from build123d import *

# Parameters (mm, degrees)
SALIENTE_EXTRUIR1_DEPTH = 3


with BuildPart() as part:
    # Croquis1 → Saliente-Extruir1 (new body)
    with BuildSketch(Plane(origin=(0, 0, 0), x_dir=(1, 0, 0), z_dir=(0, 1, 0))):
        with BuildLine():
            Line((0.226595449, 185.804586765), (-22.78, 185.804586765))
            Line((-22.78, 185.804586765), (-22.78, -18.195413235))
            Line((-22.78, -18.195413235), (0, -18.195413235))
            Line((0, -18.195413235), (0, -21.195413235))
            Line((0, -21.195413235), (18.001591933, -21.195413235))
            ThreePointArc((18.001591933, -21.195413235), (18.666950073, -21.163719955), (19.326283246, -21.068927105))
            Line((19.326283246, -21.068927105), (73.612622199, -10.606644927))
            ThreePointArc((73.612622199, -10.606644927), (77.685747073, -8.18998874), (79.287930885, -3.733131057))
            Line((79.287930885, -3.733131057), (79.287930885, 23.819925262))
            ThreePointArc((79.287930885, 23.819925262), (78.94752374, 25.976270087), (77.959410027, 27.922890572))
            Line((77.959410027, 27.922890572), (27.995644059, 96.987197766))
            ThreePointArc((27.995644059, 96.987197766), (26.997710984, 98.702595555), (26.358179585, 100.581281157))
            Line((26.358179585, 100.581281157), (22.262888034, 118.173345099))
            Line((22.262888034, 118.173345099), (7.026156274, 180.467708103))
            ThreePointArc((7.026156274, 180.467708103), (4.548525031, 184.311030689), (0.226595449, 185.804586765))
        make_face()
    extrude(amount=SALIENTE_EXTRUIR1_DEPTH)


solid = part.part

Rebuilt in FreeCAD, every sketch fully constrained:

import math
import FreeCAD as App
import Part
import Sketcher
from FreeCAD import Vector
Q = App.Units.Quantity

doc = App.newDocument("Part")
params = doc.addObject("Spreadsheet::Sheet", "Params")
for row, (alias, value) in enumerate([
    ("sketch1_radius", "7 mm"),
    ("sketch1_radius2", "7 mm"),
    ("sketch1_radius3", "7 mm"),
    ("sketch1_radius4", "10 mm"),
    ("sketch1_radius5", "7 mm"),
    ("pad1_length", "3 mm"),
], start=1):
    params.set(f"A{row}", alias)
    params.set(f"B{row}", "=" + value)
    params.setAlias(f"B{row}", alias)

body = doc.addObject("PartDesign::Body", "Body")

# Sketch on XZ plane
sketch1 = body.newObject("Sketcher::SketchObject", "Sketch")
sketch1.AttachmentSupport = (doc.getObject("XZ_Plane"), [""])
sketch1.MapMode = "FlatFace"
sketch1.addGeometry([
    Part.LineSegment(Vector(0.226595, -185.804587, 0), Vector(-22.78, -185.804587, 0)),  # 0
    Part.LineSegment(Vector(-22.78, -185.804587, 0), Vector(-22.78, 18.195413, 0)),  # 1
    Part.LineSegment(Vector(-22.78, 18.195413, 0), Vector(0, 18.195413, 0)),  # 2
    Part.LineSegment(Vector(0, 18.195413, 0), Vector(0, 21.195413, 0)),  # 3
    Part.LineSegment(Vector(0, 21.195413, 0), Vector(18.001592, 21.195413, 0)),  # 4
    Part.ArcOfCircle(Part.Circle(Vector(18.001592, 14.195413, 0), Vector(0, 0, 1), 7), math.radians(79.091471), math.radians(90)),  # 5
    Part.LineSegment(Vector(19.326283, 21.068927, 0), Vector(73.612622, 10.606645, 0)),  # 6
    Part.ArcOfCircle(Part.Circle(Vector(72.287931, 3.733131, 0), Vector(0, 0, 1), 7), math.radians(0), math.radians(79.091471)),  # 7
    Part.LineSegment(Vector(79.287931, 3.733131, 0), Vector(79.287931, -23.819925, 0)),  # 8
    Part.ArcOfCircle(Part.Circle(Vector(72.287931, -23.819925, 0), Vector(0, 0, 1), 7), math.radians(-35.883418), math.radians(0)),  # 9
    Part.LineSegment(Vector(77.95941, -27.922891, 0), Vector(27.995644, -96.987198, 0)),  # 10
    Part.ArcOfCircle(Part.Circle(Vector(36.097757, -102.848577, 0), Vector(0, 0, 1), 10), math.radians(144.116582), math.radians(166.895396)),  # 11
    Part.LineSegment(Vector(26.35818, -100.581281, 0), Vector(22.262888, -118.173345, 0)),  # 12
    Part.LineSegment(Vector(22.262888, -118.173345, 0), Vector(7.026156, -180.467708, 0)),  # 13
    Part.ArcOfCircle(Part.Circle(Vector(0.226595, -178.804587, 0), Vector(0, 0, 1), 7), math.radians(-90), math.radians(-13.744271)),  # 14
], False)
sketch1.addConstraint([
    Sketcher.Constraint("Coincident", 0, 2, 1, 1),
    Sketcher.Constraint("Coincident", 1, 2, 2, 1),
    Sketcher.Constraint("Coincident", 2, 2, 3, 1),
    Sketcher.Constraint("Coincident", 3, 2, 4, 1),
    Sketcher.Constraint("Coincident", 4, 2, 5, 2),
    Sketcher.Constraint("Coincident", 5, 1, 6, 1),
    Sketcher.Constraint("Coincident", 6, 2, 7, 2),
    Sketcher.Constraint("Coincident", 7, 1, 8, 1),
    Sketcher.Constraint("Coincident", 8, 2, 9, 2),
    Sketcher.Constraint("Coincident", 9, 1, 10, 1),
    Sketcher.Constraint("Coincident", 10, 2, 11, 1),
    Sketcher.Constraint("Coincident", 11, 2, 12, 1),
    Sketcher.Constraint("Coincident", 12, 2, 13, 1),
    Sketcher.Constraint("Coincident", 13, 2, 14, 2),
    Sketcher.Constraint("Coincident", 14, 1, 0, 1),
    Sketcher.Constraint("Horizontal", 0),
    Sketcher.Constraint("Vertical", 1),
    Sketcher.Constraint("Horizontal", 2),
    Sketcher.Constraint("Vertical", 3),
    Sketcher.Constraint("Horizontal", 4),
    Sketcher.Constraint("Vertical", 8),
    Sketcher.Constraint("PointOnObject", 2, 2, -2),
    Sketcher.Constraint("Radius", 5, Q("7 mm")),
    Sketcher.Constraint("Radius", 7, Q("7 mm")),
    Sketcher.Constraint("Radius", 9, Q("7 mm")),
    Sketcher.Constraint("Radius", 11, Q("10 mm")),
    Sketcher.Constraint("Radius", 14, Q("7 mm")),
    Sketcher.Constraint("DistanceY", 1, 1, 1, 2, Q("204 mm")),
    Sketcher.Constraint("DistanceY", 3, 1, 3, 2, Q("3 mm")),
    Sketcher.Constraint("DistanceX", 2, 1, 2, 2, Q("22.78 mm")),
    Sketcher.Constraint("DistanceX", 4, 1, 4, 2, Q("18.001592 mm")),
    Sketcher.Constraint("DistanceX", 13, 2, 11, 3, Q("29.071601 mm")),
    Sketcher.Constraint("Distance", 10, Q("85.242339 mm")),
    Sketcher.Constraint("Distance", 12, Q("18.062451 mm")),
    Sketcher.Constraint("DistanceX", 0, 2, 0, 1, Q("23.006595 mm")),
    Sketcher.Constraint("DistanceY", 8, 2, 8, 1, Q("27.553056 mm")),
    Sketcher.Constraint("DistanceX", -1, 1, 5, 3, Q("18.001592 mm")),
    Sketcher.Constraint("DistanceX", -1, 1, 7, 3, Q("72.287931 mm")),
    Sketcher.Constraint("DistanceY", -1, 1, 7, 3, Q("3.733131 mm")),
    Sketcher.Constraint("DistanceY", -1, 1, 7, 1, Q("3.733131 mm")),
    Sketcher.Constraint("DistanceX", -1, 1, 9, 1, Q("77.95941 mm")),
    Sketcher.Constraint("DistanceY", 9, 1, -1, 1, Q("27.922891 mm")),
    Sketcher.Constraint("DistanceX", -1, 1, 11, 2, Q("26.35818 mm")),
    Sketcher.Constraint("DistanceY", 11, 2, -1, 1, Q("100.581281 mm")),
    Sketcher.Constraint("DistanceX", -1, 1, 12, 2, Q("22.262888 mm")),
    Sketcher.Constraint("DistanceY", 13, 2, -1, 1, Q("180.467708 mm")),
    Sketcher.Constraint("DistanceY", 9, 3, 5, 3, Q("38.015339 mm")),
    Sketcher.Constraint("DistanceY", 11, 3, 9, 3, Q("79.028652 mm")),
    Sketcher.Constraint("DistanceX", 4, 2, 5, 1, Q("1.324691 mm")),
    Sketcher.Constraint("DistanceX", 7, 3, 6, 2, Q("1.324691 mm")),
])
sketch1.setExpression("Constraints[22]", "Params.sketch1_radius")
sketch1.setExpression("Constraints[23]", "Params.sketch1_radius2")
sketch1.setExpression("Constraints[24]", "Params.sketch1_radius3")
sketch1.setExpression("Constraints[25]", "Params.sketch1_radius4")
sketch1.setExpression("Constraints[26]", "Params.sketch1_radius5")
pad1 = body.newObject("PartDesign::Pad", "Pad")
pad1.Profile = sketch1
pad1.setExpression("Length", "Params.pad1_length")
pad1.Reversed = True

doc.recompute()
